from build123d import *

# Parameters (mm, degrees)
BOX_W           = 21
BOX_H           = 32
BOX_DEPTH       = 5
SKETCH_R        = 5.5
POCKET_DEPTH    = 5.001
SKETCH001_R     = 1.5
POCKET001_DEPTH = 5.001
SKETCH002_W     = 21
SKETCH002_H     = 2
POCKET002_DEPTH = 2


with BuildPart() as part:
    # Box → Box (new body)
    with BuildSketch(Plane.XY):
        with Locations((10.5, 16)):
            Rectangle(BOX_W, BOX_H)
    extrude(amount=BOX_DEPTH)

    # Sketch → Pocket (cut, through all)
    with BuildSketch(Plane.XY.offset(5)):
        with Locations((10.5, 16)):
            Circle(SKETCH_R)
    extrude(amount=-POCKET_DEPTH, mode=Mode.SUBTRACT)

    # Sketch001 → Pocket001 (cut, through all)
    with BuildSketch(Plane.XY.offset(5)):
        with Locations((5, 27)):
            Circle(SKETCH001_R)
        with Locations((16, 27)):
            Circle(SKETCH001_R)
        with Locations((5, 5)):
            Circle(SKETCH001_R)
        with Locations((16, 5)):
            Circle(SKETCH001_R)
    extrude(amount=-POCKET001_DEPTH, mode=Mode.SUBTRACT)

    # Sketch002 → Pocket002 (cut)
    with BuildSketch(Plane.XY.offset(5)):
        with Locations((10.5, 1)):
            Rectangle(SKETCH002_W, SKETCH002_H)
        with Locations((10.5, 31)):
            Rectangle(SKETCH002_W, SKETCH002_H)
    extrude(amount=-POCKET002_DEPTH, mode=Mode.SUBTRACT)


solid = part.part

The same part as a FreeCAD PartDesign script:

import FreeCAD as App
import Part
import Sketcher
from FreeCAD import Vector

doc = App.newDocument("Part")
params = doc.addObject("Spreadsheet::Sheet", "Params")
for row, (alias, value) in enumerate([
    ("sketch1_width", "21 mm"),
    ("sketch1_height", "32 mm"),
    ("pad1_length", "5 mm"),
    ("sketch2_diameter", "11 mm"),
    ("sketch3_diameter", "3 mm"),
    ("sketch4_width", "21 mm"),
    ("sketch4_height", "2 mm"),
    ("pocket3_length", "2 mm"),
], start=1):
    params.set(f"A{row}", alias)
    params.set(f"B{row}", "=" + value)
    params.setAlias(f"B{row}", alias)

body = doc.addObject("PartDesign::Body", "Body")

# Sketch on XY plane
sketch1 = doc.addObject("Sketcher::SketchObject", "Sketch")
body.addObject(sketch1)
sketch1.AttachmentSupport = (doc.XY_Plane, [""])
sketch1.MapMode = "FlatFace"
sketch1.addGeometry(Part.LineSegment(Vector(0, 32, 0), Vector(0, 0, 0)), False)
sketch1.addGeometry(Part.LineSegment(Vector(0, 0, 0), Vector(21, 0, 0)), False)
sketch1.addGeometry(Part.LineSegment(Vector(21, 0, 0), Vector(21, 32, 0)), False)
sketch1.addGeometry(Part.LineSegment(Vector(21, 32, 0), Vector(0, 32, 0)), False)
sketch1.addConstraint(Sketcher.Constraint("Coincident", 0, 2, 1, 1))
sketch1.addConstraint(Sketcher.Constraint("Coincident", 1, 2, 2, 1))
sketch1.addConstraint(Sketcher.Constraint("Coincident", 2, 2, 3, 1))
sketch1.addConstraint(Sketcher.Constraint("Coincident", 3, 2, 0, 1))
sketch1.addConstraint(Sketcher.Constraint("Vertical", 0))
sketch1.addConstraint(Sketcher.Constraint("Horizontal", 1))
sketch1.addConstraint(Sketcher.Constraint("Vertical", 2))
sketch1.addConstraint(Sketcher.Constraint("Horizontal", 3))
sketch1.addConstraint(Sketcher.Constraint("Coincident", 0, 2, -1, 1))
sketch1.addConstraint(Sketcher.Constraint("DistanceX", 1, 1, 1, 2, 21.0))
sketch1.addConstraint(Sketcher.Constraint("DistanceY", 0, 2, 0, 1, 32.0))
sketch1.setExpression("Constraints[9]", "Params.sketch1_width")
sketch1.setExpression("Constraints[10]", "Params.sketch1_height")
pad1 = doc.addObject("PartDesign::Pad", "Pad")
body.addObject(pad1)
pad1.Profile = sketch1
pad1.setExpression("Length", "Params.pad1_length")

# Sketch on XY plane
sketch2 = doc.addObject("Sketcher::SketchObject", "Sketch001")
body.addObject(sketch2)
sketch2.AttachmentSupport = (doc.XY_Plane, [""])
sketch2.MapMode = "FlatFace"
sketch2.AttachmentOffset = App.Placement(Vector(0, 0, 5), App.Rotation())
sketch2.addGeometry(Part.Circle(Vector(10, 16, 0), Vector(0, 0, 1), 6), False)
sketch2.addConstraint(Sketcher.Constraint("Diameter", 0, 11.0))
sketch2.addConstraint(Sketcher.Constraint("DistanceY", -1, 1, 0, 3, 16.0))
sketch2.addConstraint(Sketcher.Constraint("DistanceX", -1, 1, 0, 3, 10.5))
sketch2.setExpression("Constraints[0]", "Params.sketch2_diameter")
pocket1 = doc.addObject("PartDesign::Pocket", "Pocket")
body.addObject(pocket1)
pocket1.Profile = sketch2
pocket1.Type = "ThroughAll"

# Sketch on XY plane
sketch3 = doc.addObject("Sketcher::SketchObject", "Sketch002")
body.addObject(sketch3)
sketch3.AttachmentSupport = (doc.XY_Plane, [""])
sketch3.MapMode = "FlatFace"
sketch3.AttachmentOffset = App.Placement(Vector(0, 0, 5), App.Rotation())
sketch3.addGeometry(Part.Circle(Vector(5, 27, 0), Vector(0, 0, 1), 1.5), False)
sketch3.addGeometry(Part.Circle(Vector(16, 27, 0), Vector(0, 0, 1), 1.5), False)
sketch3.addGeometry(Part.Circle(Vector(5, 5, 0), Vector(0, 0, 1), 1.5), False)
sketch3.addGeometry(Part.Circle(Vector(16, 5, 0), Vector(0, 0, 1), 1.5), False)
sketch3.addConstraint(Sketcher.Constraint("Equal", 0, 1))
sketch3.addConstraint(Sketcher.Constraint("Equal", 1, 2))
sketch3.addConstraint(Sketcher.Constraint("Equal", 2, 3))
sketch3.addConstraint(Sketcher.Constraint("Horizontal", 0, 3, 1, 3))
sketch3.addConstraint(Sketcher.Constraint("Horizontal", 2, 3, 3, 3))
sketch3.addConstraint(Sketcher.Constraint("Vertical", 0, 3, 2, 3))
sketch3.addConstraint(Sketcher.Constraint("Vertical", 1, 3, 3, 3))
sketch3.addConstraint(Sketcher.Constraint("Diameter", 0, 3.0))
sketch3.addConstraint(Sketcher.Constraint("DistanceX", -1, 1, 0, 3, 5.0))
sketch3.addConstraint(Sketcher.Constraint("DistanceY", -1, 1, 0, 3, 27.0))
sketch3.addConstraint(Sketcher.Constraint("DistanceX", -1, 1, 1, 3, 16.0))
sketch3.addConstraint(Sketcher.Constraint("DistanceY", -1, 1, 2, 3, 5.0))
sketch3.setExpression("Constraints[7]", "Params.sketch3_diameter")
pocket2 = doc.addObject("PartDesign::Pocket", "Pocket001")
body.addObject(pocket2)
pocket2.Profile = sketch3
pocket2.Type = "ThroughAll"

# Sketch on XY plane
sketch4 = doc.addObject("Sketcher::SketchObject", "Sketch003")
body.addObject(sketch4)
sketch4.AttachmentSupport = (doc.XY_Plane, [""])
sketch4.MapMode = "FlatFace"
sketch4.AttachmentOffset = App.Placement(Vector(0, 0, 5), App.Rotation())
sketch4.addGeometry(Part.LineSegment(Vector(0, 2, 0), Vector(0, 0, 0)), False)
sketch4.addGeometry(Part.LineSegment(Vector(0, 0, 0), Vector(21, 0, 0)), False)
sketch4.addGeometry(Part.LineSegment(Vector(21, 0, 0), Vector(21, 2, 0)), False)
sketch4.addGeometry(Part.LineSegment(Vector(21, 2, 0), Vector(0, 2, 0)), False)
sketch4.addGeometry(Part.LineSegment(Vector(0, 32, 0), Vector(0, 30, 0)), False)
sketch4.addGeometry(Part.LineSegment(Vector(0, 30, 0), Vector(21, 30, 0)), False)
sketch4.addGeometry(Part.LineSegment(Vector(21, 30, 0), Vector(21, 32, 0)), False)
sketch4.addGeometry(Part.LineSegment(Vector(21, 32, 0), Vector(0, 32, 0)), False)
sketch4.addConstraint(Sketcher.Constraint("Coincident", 0, 2, 1, 1))
sketch4.addConstraint(Sketcher.Constraint("Coincident", 1, 2, 2, 1))
sketch4.addConstraint(Sketcher.Constraint("Coincident", 2, 2, 3, 1))
sketch4.addConstraint(Sketcher.Constraint("Coincident", 3, 2, 0, 1))
sketch4.addConstraint(Sketcher.Constraint("Coincident", 4, 2, 5, 1))
sketch4.addConstraint(Sketcher.Constraint("Coincident", 5, 2, 6, 1))
sketch4.addConstraint(Sketcher.Constraint("Coincident", 6, 2, 7, 1))
sketch4.addConstraint(Sketcher.Constraint("Coincident", 7, 2, 4, 1))
sketch4.addConstraint(Sketcher.Constraint("Vertical", 0))
sketch4.addConstraint(Sketcher.Constraint("Horizontal", 1))
sketch4.addConstraint(Sketcher.Constraint("Vertical", 2))
sketch4.addConstraint(Sketcher.Constraint("Horizontal", 3))
sketch4.addConstraint(Sketcher.Constraint("Vertical", 4))
sketch4.addConstraint(Sketcher.Constraint("Horizontal", 5))
sketch4.addConstraint(Sketcher.Constraint("Vertical", 6))
sketch4.addConstraint(Sketcher.Constraint("Horizontal", 7))
sketch4.addConstraint(Sketcher.Constraint("Coincident", 0, 2, -1, 1))
sketch4.addConstraint(Sketcher.Constraint("PointOnObject", 4, 2, -2))
sketch4.addConstraint(Sketcher.Constraint("Vertical", 2, 2, 5, 2))
sketch4.addConstraint(Sketcher.Constraint("Equal", 2, 4))
sketch4.addConstraint(Sketcher.Constraint("DistanceX", 1, 1, 1, 2, 21.0))
sketch4.addConstraint(Sketcher.Constraint("DistanceY", 0, 2, 0, 1, 2.0))
sketch4.addConstraint(Sketcher.Constraint("DistanceY", -1, 1, 4, 2, 30.0))
sketch4.setExpression("Constraints[20]", "Params.sketch4_width")
sketch4.setExpression("Constraints[21]", "Params.sketch4_height")
pocket3 = doc.addObject("PartDesign::Pocket", "Pocket002")
body.addObject(pocket3)
pocket3.Profile = sketch4
pocket3.setExpression("Length", "Params.pocket3_length")

doc.recompute()
